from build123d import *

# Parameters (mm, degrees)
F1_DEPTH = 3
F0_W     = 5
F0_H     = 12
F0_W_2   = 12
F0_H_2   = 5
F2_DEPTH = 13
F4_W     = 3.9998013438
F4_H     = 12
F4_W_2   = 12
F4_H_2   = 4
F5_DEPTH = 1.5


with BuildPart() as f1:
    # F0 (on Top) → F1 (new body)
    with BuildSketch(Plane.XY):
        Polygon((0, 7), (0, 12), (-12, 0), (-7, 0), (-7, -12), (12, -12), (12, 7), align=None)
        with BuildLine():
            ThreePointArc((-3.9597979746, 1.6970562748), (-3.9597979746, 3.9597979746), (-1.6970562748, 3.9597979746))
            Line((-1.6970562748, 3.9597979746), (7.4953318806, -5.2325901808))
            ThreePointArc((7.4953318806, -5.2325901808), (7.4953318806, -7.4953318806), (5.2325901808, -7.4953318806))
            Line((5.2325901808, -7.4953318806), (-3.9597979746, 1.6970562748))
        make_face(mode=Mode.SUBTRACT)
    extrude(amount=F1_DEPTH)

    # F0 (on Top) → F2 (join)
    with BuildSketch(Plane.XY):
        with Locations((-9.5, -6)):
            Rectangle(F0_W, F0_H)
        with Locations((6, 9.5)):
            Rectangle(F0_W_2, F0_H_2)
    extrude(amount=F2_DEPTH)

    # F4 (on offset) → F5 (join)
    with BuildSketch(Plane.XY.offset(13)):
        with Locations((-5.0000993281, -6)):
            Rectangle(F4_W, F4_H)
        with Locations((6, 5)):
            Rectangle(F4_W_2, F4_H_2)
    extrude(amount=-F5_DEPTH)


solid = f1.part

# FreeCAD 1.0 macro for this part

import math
import FreeCAD as App
import Part
import Sketcher
Q = App.Units.Quantity

doc = App.newDocument("Part")
params = doc.addObject("Spreadsheet::Sheet", "Params")
for row, (alias, value) in enumerate([
    ("sketch1_radius", "1.6 mm"),
    ("sketch1_width", "5 mm"),
    ("sketch1_width2", "19 mm"),
    ("sketch1_width3", "12 mm"),
    ("sketch1_length", "13 mm"),
    ("pad1_length", "3 mm"),
    ("sketch2_width", "5 mm"),
    ("sketch2_width2", "12 mm"),
    ("pad2_length", "13 mm"),
    ("sketch3_width", "12 mm"),
    ("sketch3_height", "4 mm"),
    ("pad3_length", "1.5 mm"),
], start=1):
    params.set(f"A{row}", alias)
    params.set(f"B{row}", "=" + value)
    params.setAlias(f"B{row}", alias)

body = doc.addObject("PartDesign::Body", "Body")

sketch1 = doc.addObject("Sketcher::SketchObject", "Sketch")
body.addObject(sketch1)
sketch1.AttachmentSupport = (doc.XY_Plane, [""])
sketch1.MapMode = "FlatFace"
sketch1.addGeometry([
    Part.LineSegment(App.Vector(0, 7, 0), App.Vector(0, 12, 0)),
    Part.LineSegment(App.Vector(0, 12, 0), App.Vector(-12, 0, 0)),
    Part.LineSegment(App.Vector(-12, 0, 0), App.Vector(-7, 0, 0)),
    Part.LineSegment(App.Vector(-7, 0, 0), App.Vector(-7, -12, 0)),
    Part.LineSegment(App.Vector(-7, -12, 0), App.Vector(12, -12, 0)),
    Part.LineSegment(App.Vector(12, -12, 0), App.Vector(12, 7, 0)),
    Part.LineSegment(App.Vector(12, 7, 0), App.Vector(0, 7, 0)),
    Part.LineSegment(App.Vector(5.23259, -7.495332, 0), App.Vector(-3.959798, 1.697056, 0)),
    Part.ArcOfCircle(Part.Circle(App.Vector(-2.828427, 2.828427, 0), App.Vector(0, 0, 1), 1.6), math.radians(45), math.radians(225)),
    Part.LineSegment(App.Vector(-1.697056, 3.959798, 0), App.Vector(7.495332, -5.23259, 0)),
    Part.ArcOfCircle(Part.Circle(App.Vector(6.363961, -6.363961, 0), App.Vector(0, 0, 1), 1.6), math.radians(-135), math.radians(45)),
], False)
sketch1.addConstraint([
    Sketcher.Constraint("Coincident", 0, 2, 1, 1),
    Sketcher.Constraint("Coincident", 1, 2, 2, 1),
    Sketcher.Constraint("Coincident", 2, 2, 3, 1),
    Sketcher.Constraint("Coincident", 3, 2, 4, 1),
    Sketcher.Constraint("Coincident", 4, 2, 5, 1),
    Sketcher.Constraint("Coincident", 5, 2, 6, 1),
    Sketcher.Constraint("Coincident", 6, 2, 0, 1),
    Sketcher.Constraint("Tangent", 7, 2, 8, 2),
    Sketcher.Constraint("Tangent", 8, 1, 9, 1),
    Sketcher.Constraint("Tangent", 9, 2, 10, 2),
    Sketcher.Constraint("Tangent", 10, 1, 7, 1),
    Sketcher.Constraint("Vertical", 0),
    Sketcher.Constraint("Horizontal", 2),
    Sketcher.Constraint("Vertical", 3),
    Sketcher.Constraint("Horizontal", 4),
    Sketcher.Constraint("Vertical", 5),
    Sketcher.Constraint("Horizontal", 6),
    Sketcher.Constraint("Equal", 8, 10),
    Sketcher.Constraint("PointOnObject", 0, 2, -2),
    Sketcher.Constraint("PointOnObject", 1, 2, -1),
    Sketcher.Constraint("Perpendicular", 1, 7),
    Sketcher.Constraint("Equal", 2, 0),
    Sketcher.Constraint("Equal", 6, 3),
    Sketcher.Constraint("Equal", 4, 5),
    Sketcher.Constraint("Radius", 8, Q("1.6 mm")),
    Sketcher.Constraint("DistanceX", 2, 1, 2, 2, Q("5 mm")),
    Sketcher.Constraint("DistanceX", 4, 1, 4, 2, Q("19 mm")),
    Sketcher.Constraint("DistanceX", 6, 2, 6, 1, Q("12 mm")),
    Sketcher.Constraint("Distance", 7, Q("13 mm")),
    Sketcher.Constraint("DistanceX", -1, 1, 10, 3, Q("6.363961 mm")),
    Sketcher.Constraint("DistanceY", 10, 3, -1, 1, Q("6.363961 mm")),
])
sketch1.setExpression("Constraints[24]", "Params.sketch1_radius")
sketch1.setExpression("Constraints[25]", "Params.sketch1_width")
sketch1.setExpression("Constraints[26]", "Params.sketch1_width2")
sketch1.setExpression("Constraints[27]", "Params.sketch1_width3")
sketch1.setExpression("Constraints[28]", "Params.sketch1_length")
pad1 = doc.addObject("PartDesign::Pad", "Pad")
body.addObject(pad1)
pad1.Profile = sketch1
pad1.setExpression("Length", "Params.pad1_length")

sketch2 = doc.addObject("Sketcher::SketchObject", "Sketch001")
body.addObject(sketch2)
sketch2.AttachmentSupport = (doc.XY_Plane, [""])
sketch2.MapMode = "FlatFace"
sketch2.addGeometry([
    Part.LineSegment(App.Vector(-12, 0, 0), App.Vector(-12, -12, 0)),
    Part.LineSegment(App.Vector(-12, -12, 0), App.Vector(-7, -12, 0)),
    Part.LineSegment(App.Vector(-7, -12, 0), App.Vector(-7, 0, 0)),
    Part.LineSegment(App.Vector(-7, 0, 0), App.Vector(-12, 0, 0)),
    Part.LineSegment(App.Vector(0, 12, 0), App.Vector(0, 7, 0)),
    Part.LineSegment(App.Vector(0, 7, 0), App.Vector(12, 7, 0)),
    Part.LineSegment(App.Vector(12, 7, 0), App.Vector(12, 12, 0)),
    Part.LineSegment(App.Vector(12, 12, 0), App.Vector(0, 12, 0)),
], False)
sketch2.addConstraint([
    Sketcher.Constraint("Coincident", 0, 2, 1, 1),
    Sketcher.Constraint("Coincident", 1, 2, 2, 1),
    Sketcher.Constraint("Coincident", 2, 2, 3, 1),
    Sketcher.Constraint("Coincident", 3, 2, 0, 1),
    Sketcher.Constraint("Coincident", 4, 2, 5, 1),
    Sketcher.Constraint("Coincident", 5, 2, 6, 1),
    Sketcher.Constraint("Coincident", 6, 2, 7, 1),
    Sketcher.Constraint("Coincident", 7, 2, 4, 1),
    Sketcher.Constraint("Vertical", 0),
    Sketcher.Constraint("Horizontal", 1),
    Sketcher.Constraint("Vertical", 2),
    Sketcher.Constraint("Horizontal", 3),
    Sketcher.Constraint("Vertical", 4),
    Sketcher.Constraint("Horizontal", 5),
    Sketcher.Constraint("Vertical", 6),
    Sketcher.Constraint("Horizontal", 7),
    Sketcher.Constraint("Symmetric", 0, 2, 6, 2, -1, 1),
    Sketcher.Constraint("PointOnObject", 2, 2, -1),
    Sketcher.Constraint("PointOnObject", 4, 2, -2),
    Sketcher.Constraint("Equal", 7, 0),
    Sketcher.Constraint("Equal", 3, 4),
    Sketcher.Constraint("DistanceX", 1, 1, 1, 2, Q("5 mm")),
    Sketcher.Constraint("DistanceX", 5, 1, 5, 2, Q("12 mm")),
])
sketch2.setExpression("Constraints[21]", "Params.sketch2_width")
sketch2.setExpression("Constraints[22]", "Params.sketch2_width2")
pad2 = doc.addObject("PartDesign::Pad", "Pad001")
body.addObject(pad2)
pad2.Profile = sketch2
pad2.setExpression("Length", "Params.pad2_length")

sketch3 = doc.addObject("Sketcher::SketchObject", "Sketch002")
body.addObject(sketch3)
sketch3.AttachmentSupport = (doc.XY_Plane, [""])
sketch3.MapMode = "FlatFace"
sketch3.AttachmentOffset = App.Placement(App.Vector(0, 0, 13), App.Rotation())
sketch3.addGeometry([
    Part.LineSegment(App.Vector(-7, 0, 0), App.Vector(-7, -12, 0)),
    Part.LineSegment(App.Vector(-7, -12, 0), App.Vector(-3.000199, -12, 0)),
    Part.LineSegment(App.Vector(-3.000199, -12, 0), App.Vector(-3.000199, 0, 0)),
    Part.LineSegment(App.Vector(-3.000199, 0, 0), App.Vector(-7, 0, 0)),
    Part.LineSegment(App.Vector(0, 7, 0), App.Vector(0, 3, 0)),
    Part.LineSegment(App.Vector(0, 3, 0), App.Vector(12, 3, 0)),
    Part.LineSegment(App.Vector(12, 3, 0), App.Vector(12, 7, 0)),
    Part.LineSegment(App.Vector(12, 7, 0), App.Vector(0, 7, 0)),
], False)
sketch3.addConstraint([
    Sketcher.Constraint("Coincident", 0, 2, 1, 1),
    Sketcher.Constraint("Coincident", 1, 2, 2, 1),
    Sketcher.Constraint("Coincident", 2, 2, 3, 1),
    Sketcher.Constraint("Coincident", 3, 2, 0, 1),
    Sketcher.Constraint("Coincident", 4, 2, 5, 1),
    Sketcher.Constraint("Coincident", 5, 2, 6, 1),
    Sketcher.Constraint("Coincident", 6, 2, 7, 1),
    Sketcher.Constraint("Coincident", 7, 2, 4, 1),
    Sketcher.Constraint("Vertical", 0),
    Sketcher.Constraint("Horizontal", 1),
    Sketcher.Constraint("Vertical", 2),
    Sketcher.Constraint("Horizontal", 3),
    Sketcher.Constraint("Vertical", 4),
    Sketcher.Constraint("Horizontal", 5),
    Sketcher.Constraint("Vertical", 6),
    Sketcher.Constraint("Horizontal", 7),
    Sketcher.Constraint("PointOnObject", 2, 2, -1),
    Sketcher.Constraint("PointOnObject", 4, 2, -2),
    Sketcher.Constraint("Equal", 7, 0),
    Sketcher.Constraint("DistanceX", 5, 1, 5, 2, Q("12 mm")),
    Sketcher.Constraint("DistanceY", 4, 2, 4, 1, Q("4 mm")),
    Sketcher.Constraint("DistanceX", 0, 2, -1, 1, Q("7 mm")),
    Sketcher.Constraint("DistanceY", -1, 1, 4, 2, Q("3 mm")),
    Sketcher.Constraint("DistanceX", 1, 1, 1, 2, Q("3.999801 mm")),
])
sketch3.setExpression("Constraints[19]", "Params.sketch3_width")
sketch3.setExpression("Constraints[20]", "Params.sketch3_height")
pad3 = doc.addObject("PartDesign::Pad", "Pad002")
body.addObject(pad3)
pad3.Profile = sketch3
pad3.setExpression("Length", "Params.pad3_length")
pad3.Reversed = True

doc.recompute()
